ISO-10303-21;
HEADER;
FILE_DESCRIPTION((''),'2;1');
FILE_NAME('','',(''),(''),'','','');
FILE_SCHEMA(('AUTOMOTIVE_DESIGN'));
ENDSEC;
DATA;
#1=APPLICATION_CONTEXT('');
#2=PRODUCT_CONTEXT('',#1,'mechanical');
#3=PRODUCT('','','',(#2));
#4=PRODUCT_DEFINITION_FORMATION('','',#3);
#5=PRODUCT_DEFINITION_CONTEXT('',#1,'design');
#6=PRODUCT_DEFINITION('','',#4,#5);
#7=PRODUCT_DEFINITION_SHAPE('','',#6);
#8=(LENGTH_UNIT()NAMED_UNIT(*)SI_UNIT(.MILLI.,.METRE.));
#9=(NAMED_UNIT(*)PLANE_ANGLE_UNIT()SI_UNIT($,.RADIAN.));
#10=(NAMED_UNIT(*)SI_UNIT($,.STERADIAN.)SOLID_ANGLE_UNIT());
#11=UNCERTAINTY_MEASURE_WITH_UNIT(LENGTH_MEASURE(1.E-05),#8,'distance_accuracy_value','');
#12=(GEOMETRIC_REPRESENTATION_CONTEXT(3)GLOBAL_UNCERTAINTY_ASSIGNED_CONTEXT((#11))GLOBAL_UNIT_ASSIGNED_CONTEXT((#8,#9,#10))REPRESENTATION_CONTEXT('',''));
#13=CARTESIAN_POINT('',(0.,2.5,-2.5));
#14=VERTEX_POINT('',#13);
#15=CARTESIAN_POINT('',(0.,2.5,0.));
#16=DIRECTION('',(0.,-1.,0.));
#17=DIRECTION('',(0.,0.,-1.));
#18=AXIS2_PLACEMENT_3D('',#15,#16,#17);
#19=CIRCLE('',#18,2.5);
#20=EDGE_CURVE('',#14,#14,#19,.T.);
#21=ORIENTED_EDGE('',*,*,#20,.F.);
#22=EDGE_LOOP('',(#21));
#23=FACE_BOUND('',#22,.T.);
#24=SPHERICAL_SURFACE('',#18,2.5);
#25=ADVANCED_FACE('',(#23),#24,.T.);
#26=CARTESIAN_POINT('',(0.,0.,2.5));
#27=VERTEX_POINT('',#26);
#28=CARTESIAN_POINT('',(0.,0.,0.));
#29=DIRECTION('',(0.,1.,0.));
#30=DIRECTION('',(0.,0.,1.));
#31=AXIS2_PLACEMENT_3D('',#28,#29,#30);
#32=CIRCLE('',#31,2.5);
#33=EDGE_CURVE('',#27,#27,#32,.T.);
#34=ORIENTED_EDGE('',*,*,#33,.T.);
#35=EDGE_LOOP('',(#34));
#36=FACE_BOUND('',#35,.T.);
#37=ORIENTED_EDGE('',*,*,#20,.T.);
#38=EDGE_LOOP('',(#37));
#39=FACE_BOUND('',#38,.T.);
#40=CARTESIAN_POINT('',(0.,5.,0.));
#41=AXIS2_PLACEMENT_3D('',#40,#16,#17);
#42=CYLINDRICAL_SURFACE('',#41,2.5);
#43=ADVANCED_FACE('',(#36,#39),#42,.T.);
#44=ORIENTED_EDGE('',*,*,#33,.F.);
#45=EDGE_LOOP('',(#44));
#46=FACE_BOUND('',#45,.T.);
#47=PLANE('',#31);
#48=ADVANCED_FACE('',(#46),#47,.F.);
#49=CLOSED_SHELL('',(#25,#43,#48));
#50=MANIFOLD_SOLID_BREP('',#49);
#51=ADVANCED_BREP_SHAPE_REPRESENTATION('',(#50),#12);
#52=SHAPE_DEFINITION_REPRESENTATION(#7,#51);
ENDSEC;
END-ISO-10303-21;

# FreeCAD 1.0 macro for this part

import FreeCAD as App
import Part
import Sketcher
from FreeCAD import Vector
Q = App.Units.Quantity


def edges_at(feature, points):
    """Names of the edges that pass closest to the given points."""
    edges = feature.Shape.Edges
    near = lambda p: min(range(len(edges)), key=lambda i: edges[i].distToShape(Part.Vertex(*p))[0])
    return sorted({f"Edge{near(p) + 1}" for p in points})

doc = App.newDocument("Part")
body = doc.addObject("PartDesign::Body", "Body")

sketch1 = body.newObject("Sketcher::SketchObject", "Sketch")
sketch1.AttachmentSupport = (doc.getObject("XZ_Plane"), [""])
sketch1.MapMode = "FlatFace"
sketch1.addGeometry(Part.Circle(Vector(0, 0, 0), Vector(0, 0, 1), 2.5), False)
sketch1.addConstraint([
    Sketcher.Constraint("Coincident", 0, 3, -1, 1),
    Sketcher.Constraint("Diameter", 0, Q("5 mm")),
])
pad1 = body.newObject("PartDesign::Pad", "Pad")
pad1.Profile = sketch1
pad1.Length = 5
pad1.Reversed = True
doc.recompute()

fillet = body.newObject("PartDesign::Fillet", "Fillet")
fillet.Base = (pad1, edges_at(pad1, [(-2.5, 5, 0)]))
fillet.Radius = 2.5

doc.recompute()
